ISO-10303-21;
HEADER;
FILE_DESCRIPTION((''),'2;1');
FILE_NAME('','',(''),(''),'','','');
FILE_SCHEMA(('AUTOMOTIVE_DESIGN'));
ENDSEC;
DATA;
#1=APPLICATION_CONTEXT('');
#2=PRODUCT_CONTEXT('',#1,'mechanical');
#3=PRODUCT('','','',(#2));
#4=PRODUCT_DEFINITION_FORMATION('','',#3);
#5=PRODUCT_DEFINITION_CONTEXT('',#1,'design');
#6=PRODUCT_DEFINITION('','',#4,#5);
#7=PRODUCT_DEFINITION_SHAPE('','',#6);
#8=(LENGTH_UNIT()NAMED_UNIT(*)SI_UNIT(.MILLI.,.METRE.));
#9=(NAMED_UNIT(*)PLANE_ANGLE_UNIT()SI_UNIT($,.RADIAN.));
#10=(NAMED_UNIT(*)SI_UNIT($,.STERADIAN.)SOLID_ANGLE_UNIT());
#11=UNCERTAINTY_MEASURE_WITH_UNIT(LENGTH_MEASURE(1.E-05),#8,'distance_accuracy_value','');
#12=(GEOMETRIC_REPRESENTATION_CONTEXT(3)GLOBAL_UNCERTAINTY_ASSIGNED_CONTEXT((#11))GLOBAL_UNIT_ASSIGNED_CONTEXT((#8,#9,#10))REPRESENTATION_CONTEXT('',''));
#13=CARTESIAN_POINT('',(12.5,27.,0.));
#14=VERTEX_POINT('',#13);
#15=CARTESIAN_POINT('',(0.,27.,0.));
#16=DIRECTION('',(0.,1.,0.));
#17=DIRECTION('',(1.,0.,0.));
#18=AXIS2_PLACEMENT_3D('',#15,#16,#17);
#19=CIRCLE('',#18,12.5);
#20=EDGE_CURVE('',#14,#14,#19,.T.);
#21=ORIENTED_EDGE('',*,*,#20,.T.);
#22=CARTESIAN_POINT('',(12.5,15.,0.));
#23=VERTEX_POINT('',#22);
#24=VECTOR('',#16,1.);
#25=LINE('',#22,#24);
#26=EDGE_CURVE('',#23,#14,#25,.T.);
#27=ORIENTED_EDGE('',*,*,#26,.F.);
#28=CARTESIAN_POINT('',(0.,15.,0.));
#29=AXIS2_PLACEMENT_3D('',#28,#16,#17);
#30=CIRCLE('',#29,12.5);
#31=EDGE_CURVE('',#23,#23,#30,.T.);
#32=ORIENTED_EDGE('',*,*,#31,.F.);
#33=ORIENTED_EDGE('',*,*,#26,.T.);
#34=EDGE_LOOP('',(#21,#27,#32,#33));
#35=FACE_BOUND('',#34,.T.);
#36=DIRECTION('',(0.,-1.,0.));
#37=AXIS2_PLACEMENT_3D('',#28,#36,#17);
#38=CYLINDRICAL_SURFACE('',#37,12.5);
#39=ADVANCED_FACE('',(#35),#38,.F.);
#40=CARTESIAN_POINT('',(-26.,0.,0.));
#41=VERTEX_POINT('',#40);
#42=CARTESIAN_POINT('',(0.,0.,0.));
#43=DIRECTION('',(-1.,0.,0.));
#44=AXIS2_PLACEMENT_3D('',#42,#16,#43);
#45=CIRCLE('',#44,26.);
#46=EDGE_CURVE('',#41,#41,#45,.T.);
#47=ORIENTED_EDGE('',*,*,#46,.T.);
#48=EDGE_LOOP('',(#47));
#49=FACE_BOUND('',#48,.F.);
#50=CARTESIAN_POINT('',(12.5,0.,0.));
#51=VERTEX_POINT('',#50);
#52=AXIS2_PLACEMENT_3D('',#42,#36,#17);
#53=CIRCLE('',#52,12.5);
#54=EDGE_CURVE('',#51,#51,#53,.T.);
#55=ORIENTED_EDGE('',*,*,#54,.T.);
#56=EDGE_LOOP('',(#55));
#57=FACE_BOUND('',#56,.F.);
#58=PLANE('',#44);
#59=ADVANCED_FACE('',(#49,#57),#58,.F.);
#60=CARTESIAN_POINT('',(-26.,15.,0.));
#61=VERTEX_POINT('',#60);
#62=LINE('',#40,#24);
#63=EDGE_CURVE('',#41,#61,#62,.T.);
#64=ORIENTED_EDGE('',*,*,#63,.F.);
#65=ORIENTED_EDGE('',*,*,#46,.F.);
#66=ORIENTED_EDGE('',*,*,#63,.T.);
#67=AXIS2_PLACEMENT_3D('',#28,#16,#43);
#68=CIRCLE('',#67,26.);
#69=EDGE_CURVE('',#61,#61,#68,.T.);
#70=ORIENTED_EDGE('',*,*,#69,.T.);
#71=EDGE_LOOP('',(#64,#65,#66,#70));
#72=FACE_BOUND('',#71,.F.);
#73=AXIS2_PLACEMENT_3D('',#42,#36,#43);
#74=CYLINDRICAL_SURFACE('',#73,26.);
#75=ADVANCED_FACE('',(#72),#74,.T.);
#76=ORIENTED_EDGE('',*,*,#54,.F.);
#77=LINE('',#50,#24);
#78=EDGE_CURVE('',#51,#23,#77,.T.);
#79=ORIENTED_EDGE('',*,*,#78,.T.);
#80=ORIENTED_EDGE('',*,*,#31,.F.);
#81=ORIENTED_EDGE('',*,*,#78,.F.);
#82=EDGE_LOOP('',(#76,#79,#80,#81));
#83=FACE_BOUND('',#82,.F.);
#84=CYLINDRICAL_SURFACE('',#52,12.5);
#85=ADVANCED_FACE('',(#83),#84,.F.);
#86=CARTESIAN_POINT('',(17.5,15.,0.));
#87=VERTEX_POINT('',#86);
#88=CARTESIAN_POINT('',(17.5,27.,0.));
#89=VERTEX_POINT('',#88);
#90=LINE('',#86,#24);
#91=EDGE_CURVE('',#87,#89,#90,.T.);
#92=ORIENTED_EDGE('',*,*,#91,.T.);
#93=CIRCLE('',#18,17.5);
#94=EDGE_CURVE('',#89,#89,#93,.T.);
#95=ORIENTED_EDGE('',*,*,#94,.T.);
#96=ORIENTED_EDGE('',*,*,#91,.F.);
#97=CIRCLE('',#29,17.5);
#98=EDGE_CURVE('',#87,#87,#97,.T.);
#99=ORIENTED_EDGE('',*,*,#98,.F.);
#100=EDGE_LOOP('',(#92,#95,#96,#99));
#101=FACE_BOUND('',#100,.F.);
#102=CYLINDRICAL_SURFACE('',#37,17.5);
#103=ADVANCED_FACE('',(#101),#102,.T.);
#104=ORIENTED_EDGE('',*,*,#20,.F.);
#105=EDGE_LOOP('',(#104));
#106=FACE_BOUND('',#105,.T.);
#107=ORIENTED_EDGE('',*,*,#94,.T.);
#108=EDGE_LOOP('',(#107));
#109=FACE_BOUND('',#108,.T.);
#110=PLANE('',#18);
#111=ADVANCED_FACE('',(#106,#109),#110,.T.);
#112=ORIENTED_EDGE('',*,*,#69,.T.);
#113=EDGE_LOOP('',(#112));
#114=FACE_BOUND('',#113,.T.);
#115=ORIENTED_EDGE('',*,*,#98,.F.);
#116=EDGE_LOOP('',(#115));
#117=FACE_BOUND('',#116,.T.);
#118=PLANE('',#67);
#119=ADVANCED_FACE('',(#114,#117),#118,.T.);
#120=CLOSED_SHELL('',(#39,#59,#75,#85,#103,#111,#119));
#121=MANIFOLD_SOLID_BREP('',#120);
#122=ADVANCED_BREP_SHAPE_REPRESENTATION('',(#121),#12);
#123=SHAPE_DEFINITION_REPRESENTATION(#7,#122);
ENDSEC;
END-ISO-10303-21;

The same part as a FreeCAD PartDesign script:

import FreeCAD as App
import Part
import Sketcher

V = App.Vector
Q = App.Units.Quantity

doc = App.newDocument("Part")
body = doc.addObject("PartDesign::Body", "Body")

sketch1 = body.newObject("Sketcher::SketchObject", "Sketch")
sketch1.AttachmentSupport = (doc.getObject("XZ_Plane"), [""])
sketch1.MapMode = "FlatFace"
sketch1.addGeometry(Part.Circle(V(0, 0, 0), V(0, 0, 1), 26), False)
sketch1.addConstraint([
    Sketcher.Constraint("Coincident", 0, 3, -1, 1),
    Sketcher.Constraint("Diameter", 0, Q("52 mm")),
])
pad1 = body.newObject("PartDesign::Pad", "Pad")
pad1.Profile = sketch1
pad1.Length = 15
pad1.Reversed = True

sketch2 = body.newObject("Sketcher::SketchObject", "Sketch001")
sketch2.AttachmentSupport = (doc.getObject("XZ_Plane"), [""])
sketch2.MapMode = "FlatFace"
sketch2.AttachmentOffset = App.Placement(V(0, 0, -15), App.Rotation())
sketch2.addGeometry([
    Part.Circle(V(0, 0, 0), V(0, 0, 1), 18),
    Part.Circle(V(0, 0, 0), V(0, 0, 1), 12),
], False)
sketch2.addConstraint([
    Sketcher.Constraint("Coincident", 0, 3, -1, 1),
    Sketcher.Constraint("Coincident", 1, 3, -1, 1),
    Sketcher.Constraint("Diameter", 0, Q("35 mm")),
    Sketcher.Constraint("Diameter", 1, Q("25 mm")),
])
pad2 = body.newObject("PartDesign::Pad", "Pad001")
pad2.Profile = sketch2
pad2.Length = 12
pad2.Reversed = True

sketch3 = body.newObject("Sketcher::SketchObject", "Sketch002")
sketch3.AttachmentSupport = (doc.getObject("XZ_Plane"), [""])
sketch3.MapMode = "FlatFace"
sketch3.addGeometry(Part.Circle(V(0, 0, 0), V(0, 0, 1), 12), False)
sketch3.addConstraint([
    Sketcher.Constraint("Coincident", 0, 3, -1, 1),
    Sketcher.Constraint("Diameter", 0, Q("25 mm")),
])
pocket1 = body.newObject("PartDesign::Pocket", "Pocket")
pocket1.Profile = sketch3
pocket1.Length = 15

doc.recompute()
